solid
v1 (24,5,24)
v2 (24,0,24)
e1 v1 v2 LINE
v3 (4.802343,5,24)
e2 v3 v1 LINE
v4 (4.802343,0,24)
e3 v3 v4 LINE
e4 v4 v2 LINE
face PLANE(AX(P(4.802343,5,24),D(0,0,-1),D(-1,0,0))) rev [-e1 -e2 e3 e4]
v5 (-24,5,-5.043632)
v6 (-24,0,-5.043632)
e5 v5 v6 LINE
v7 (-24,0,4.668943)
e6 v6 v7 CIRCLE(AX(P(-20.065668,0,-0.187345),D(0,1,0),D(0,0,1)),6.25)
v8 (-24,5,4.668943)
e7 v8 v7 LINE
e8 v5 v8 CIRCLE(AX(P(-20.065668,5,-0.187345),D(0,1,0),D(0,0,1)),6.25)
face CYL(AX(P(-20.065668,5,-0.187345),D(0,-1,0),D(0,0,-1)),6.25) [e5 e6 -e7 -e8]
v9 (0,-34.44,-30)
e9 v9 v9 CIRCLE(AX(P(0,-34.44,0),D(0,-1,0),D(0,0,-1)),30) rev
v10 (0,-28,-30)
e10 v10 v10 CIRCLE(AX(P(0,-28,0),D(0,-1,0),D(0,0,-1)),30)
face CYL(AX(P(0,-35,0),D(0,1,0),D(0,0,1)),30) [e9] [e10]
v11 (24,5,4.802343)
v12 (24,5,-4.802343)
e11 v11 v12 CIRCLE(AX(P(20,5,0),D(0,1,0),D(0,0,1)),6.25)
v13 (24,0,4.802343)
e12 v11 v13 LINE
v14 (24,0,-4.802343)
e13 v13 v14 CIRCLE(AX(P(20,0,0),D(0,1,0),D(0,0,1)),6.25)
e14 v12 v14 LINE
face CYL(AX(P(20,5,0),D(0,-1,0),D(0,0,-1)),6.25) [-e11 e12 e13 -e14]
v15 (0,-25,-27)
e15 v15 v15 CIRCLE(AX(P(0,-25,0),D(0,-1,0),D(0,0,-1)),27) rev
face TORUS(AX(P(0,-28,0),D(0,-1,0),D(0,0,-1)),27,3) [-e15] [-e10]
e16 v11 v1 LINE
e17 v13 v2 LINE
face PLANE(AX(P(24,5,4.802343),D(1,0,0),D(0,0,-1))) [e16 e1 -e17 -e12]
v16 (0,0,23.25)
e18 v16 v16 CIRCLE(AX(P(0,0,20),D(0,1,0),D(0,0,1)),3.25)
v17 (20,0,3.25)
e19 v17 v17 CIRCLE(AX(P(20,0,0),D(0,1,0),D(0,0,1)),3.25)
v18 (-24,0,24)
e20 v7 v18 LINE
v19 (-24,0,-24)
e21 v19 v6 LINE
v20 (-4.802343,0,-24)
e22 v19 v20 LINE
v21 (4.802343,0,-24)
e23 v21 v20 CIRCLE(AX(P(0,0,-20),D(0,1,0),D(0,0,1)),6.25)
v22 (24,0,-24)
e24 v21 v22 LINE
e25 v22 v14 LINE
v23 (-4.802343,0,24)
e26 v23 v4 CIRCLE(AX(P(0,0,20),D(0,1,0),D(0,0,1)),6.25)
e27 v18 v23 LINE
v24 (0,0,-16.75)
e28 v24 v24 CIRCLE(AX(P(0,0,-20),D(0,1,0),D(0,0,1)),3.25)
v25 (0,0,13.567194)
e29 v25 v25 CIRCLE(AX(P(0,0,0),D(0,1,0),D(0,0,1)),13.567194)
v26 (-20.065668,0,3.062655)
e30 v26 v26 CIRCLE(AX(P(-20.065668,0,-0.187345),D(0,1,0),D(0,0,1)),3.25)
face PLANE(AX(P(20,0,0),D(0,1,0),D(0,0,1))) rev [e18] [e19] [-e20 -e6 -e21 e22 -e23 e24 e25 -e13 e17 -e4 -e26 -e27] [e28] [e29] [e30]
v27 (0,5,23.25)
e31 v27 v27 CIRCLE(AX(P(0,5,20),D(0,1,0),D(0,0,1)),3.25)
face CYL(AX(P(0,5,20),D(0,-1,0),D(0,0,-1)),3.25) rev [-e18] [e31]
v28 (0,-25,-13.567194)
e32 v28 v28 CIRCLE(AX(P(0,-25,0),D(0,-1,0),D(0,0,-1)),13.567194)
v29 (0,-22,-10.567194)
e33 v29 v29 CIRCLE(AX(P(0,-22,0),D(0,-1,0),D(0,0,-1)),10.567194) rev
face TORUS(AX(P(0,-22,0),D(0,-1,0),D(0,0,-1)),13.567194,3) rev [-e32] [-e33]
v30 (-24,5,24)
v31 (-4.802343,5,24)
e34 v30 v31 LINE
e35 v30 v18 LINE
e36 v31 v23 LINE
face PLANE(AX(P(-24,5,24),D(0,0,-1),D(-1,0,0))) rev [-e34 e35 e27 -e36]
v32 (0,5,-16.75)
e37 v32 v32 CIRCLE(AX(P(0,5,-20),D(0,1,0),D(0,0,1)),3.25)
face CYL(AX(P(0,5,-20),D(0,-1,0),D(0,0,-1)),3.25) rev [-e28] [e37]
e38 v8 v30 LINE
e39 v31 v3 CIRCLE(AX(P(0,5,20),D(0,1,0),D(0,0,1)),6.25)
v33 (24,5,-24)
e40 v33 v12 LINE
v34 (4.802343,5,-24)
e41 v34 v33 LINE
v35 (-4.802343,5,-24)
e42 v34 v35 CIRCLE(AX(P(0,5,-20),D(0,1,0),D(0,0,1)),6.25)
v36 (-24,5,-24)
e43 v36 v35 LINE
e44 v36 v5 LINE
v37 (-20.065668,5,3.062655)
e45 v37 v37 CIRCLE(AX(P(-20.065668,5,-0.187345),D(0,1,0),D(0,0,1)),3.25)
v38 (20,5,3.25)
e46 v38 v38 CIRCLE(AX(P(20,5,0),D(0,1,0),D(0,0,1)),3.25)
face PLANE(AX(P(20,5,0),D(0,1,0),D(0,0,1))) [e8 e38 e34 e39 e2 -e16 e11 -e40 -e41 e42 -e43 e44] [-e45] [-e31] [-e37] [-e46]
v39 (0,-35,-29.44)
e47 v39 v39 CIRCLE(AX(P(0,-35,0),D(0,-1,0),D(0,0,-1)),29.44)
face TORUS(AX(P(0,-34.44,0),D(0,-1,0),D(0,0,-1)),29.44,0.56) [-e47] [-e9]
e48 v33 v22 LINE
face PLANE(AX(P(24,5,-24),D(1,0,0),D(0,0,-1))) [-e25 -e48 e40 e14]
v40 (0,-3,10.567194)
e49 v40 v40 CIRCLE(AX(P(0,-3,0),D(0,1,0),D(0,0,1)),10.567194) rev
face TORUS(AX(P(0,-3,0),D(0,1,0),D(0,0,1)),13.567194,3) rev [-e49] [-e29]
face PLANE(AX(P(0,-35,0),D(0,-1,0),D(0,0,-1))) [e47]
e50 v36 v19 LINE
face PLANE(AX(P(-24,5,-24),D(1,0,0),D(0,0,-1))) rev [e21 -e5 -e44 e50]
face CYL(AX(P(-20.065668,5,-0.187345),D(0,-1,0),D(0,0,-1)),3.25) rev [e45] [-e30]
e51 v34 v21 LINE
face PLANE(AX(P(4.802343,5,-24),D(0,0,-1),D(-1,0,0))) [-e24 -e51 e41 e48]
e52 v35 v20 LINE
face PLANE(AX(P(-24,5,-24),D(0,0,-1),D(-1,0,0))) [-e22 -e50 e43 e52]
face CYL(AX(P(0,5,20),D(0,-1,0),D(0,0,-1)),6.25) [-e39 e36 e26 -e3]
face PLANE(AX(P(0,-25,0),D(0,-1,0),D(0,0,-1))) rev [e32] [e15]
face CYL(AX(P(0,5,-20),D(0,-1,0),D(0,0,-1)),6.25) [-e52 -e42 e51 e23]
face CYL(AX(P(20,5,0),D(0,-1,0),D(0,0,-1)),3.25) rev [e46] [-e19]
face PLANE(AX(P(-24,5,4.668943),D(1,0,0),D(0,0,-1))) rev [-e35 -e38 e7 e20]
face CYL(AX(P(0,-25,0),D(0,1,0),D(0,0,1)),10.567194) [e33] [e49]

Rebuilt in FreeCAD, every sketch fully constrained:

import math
import FreeCAD as App
import Part
import Sketcher
from FreeCAD import Vector
Q = App.Units.Quantity


def edges_at(feature, points):
    """Names of the edges that pass closest to the given points."""
    edges = feature.Shape.Edges
    near = lambda p: min(range(len(edges)), key=lambda i: edges[i].distToShape(Part.Vertex(*p))[0])
    return sorted({f"Edge{near(p) + 1}" for p in points})


def add_polygon(sketch, points):
    """Adds a closed chain of lines whose ends are joined by coincident constraints."""
    first, n = sketch.GeometryCount, len(points)
    for a, b in zip(points, points[1:] + points[:1]):
        sketch.addGeometry(Part.LineSegment(App.Vector(*a, 0), App.Vector(*b, 0)), False)
    for i in range(n):
        sketch.addConstraint(Sketcher.Constraint("Coincident", first + i, 2, first + (i + 1) % n, 1))

doc = App.newDocument("Part")
body = doc.addObject("PartDesign::Body", "Body")

# Sketch on XZ plane
sketch1 = doc.addObject("Sketcher::SketchObject", "Sketch")
body.addObject(sketch1)
sketch1.AttachmentSupport = (doc.XZ_Plane, [""])
sketch1.MapMode = "FlatFace"
sketch1.addGeometry([
    Part.LineSegment(Vector(-24, 4.7, 0), Vector(-24, 24, 0)),  # 0
    Part.LineSegment(Vector(-24, 24, 0), Vector(-4.8, 24, 0)),  # 1
    Part.ArcOfCircle(Part.Circle(Vector(0, 20, 0), Vector(0, 0, 1), 6.2), math.radians(40), math.radians(140)),  # 2
    Part.LineSegment(Vector(4.8, 24, 0), Vector(24, 24, 0)),  # 3
    Part.LineSegment(Vector(24, 24, 0), Vector(24, 4.8, 0)),  # 4
    Part.ArcOfCircle(Part.Circle(Vector(20, 0, 0), Vector(0, 0, 1), 6.2), math.radians(-50), math.radians(50)),  # 5
    Part.LineSegment(Vector(24, -4.8, 0), Vector(24, -24, 0)),  # 6
    Part.LineSegment(Vector(24, -24, 0), Vector(4.8, -24, 0)),  # 7
    Part.ArcOfCircle(Part.Circle(Vector(0, -20, 0), Vector(0, 0, 1), 6.2), math.radians(-140), math.radians(-40)),  # 8
    Part.LineSegment(Vector(-4.8, -24, 0), Vector(-24, -24, 0)),  # 9
    Part.LineSegment(Vector(-24, -24, 0), Vector(-24, -5, 0)),  # 10
    Part.ArcOfCircle(Part.Circle(Vector(-20.1, -0.2, 0), Vector(0, 0, 1), 6.3), math.radians(129), math.radians(231)),  # 11
    Part.Circle(Vector(0, 20, 0), Vector(0, 0, 1), 3.2),  # 12
    Part.Circle(Vector(-20.1, -0.2, 0), Vector(0, 0, 1), 3.2),  # 13
    Part.LineSegment(Vector(-16, -4.9, 0), Vector(-16, -16, 0)),  # 14
    Part.LineSegment(Vector(-16, -16, 0), Vector(-4.8, -16, 0)),  # 15
    Part.ArcOfCircle(Part.Circle(Vector(0, -20, 0), Vector(0, 0, 1), 6.2), math.radians(40), math.radians(140)),  # 16
    Part.LineSegment(Vector(4.8, -16, 0), Vector(16, -16, 0)),  # 17
    Part.LineSegment(Vector(16, -16, 0), Vector(16, -4.8, 0)),  # 18
    Part.ArcOfCircle(Part.Circle(Vector(20, 0, 0), Vector(0, 0, 1), 6.2), math.radians(130), math.radians(230)),  # 19
    Part.LineSegment(Vector(16, 4.8, 0), Vector(16, 16, 0)),  # 20
    Part.LineSegment(Vector(16, 16, 0), Vector(4.8, 16, 0)),  # 21
    Part.ArcOfCircle(Part.Circle(Vector(0, 20, 0), Vector(0, 0, 1), 6.2), math.radians(-140), math.radians(-40)),  # 22
    Part.LineSegment(Vector(-4.8, 16, 0), Vector(-16, 16, 0)),  # 23
    Part.LineSegment(Vector(-16, 16, 0), Vector(-16, 4.6, 0)),  # 24
    Part.ArcOfCircle(Part.Circle(Vector(-20.1, -0.2, 0), Vector(0, 0, 1), 6.2), math.radians(-49), math.radians(49)),  # 25
    Part.Circle(Vector(20, 0, 0), Vector(0, 0, 1), 3.2),  # 26
    Part.Circle(Vector(0, -20, 0), Vector(0, 0, 1), 3.2),  # 27
], False)
sketch1.addConstraint([
    Sketcher.Constraint("Coincident", 0, 2, 1, 1),
    Sketcher.Constraint("Coincident", 1, 2, 2, 2),
    Sketcher.Constraint("Coincident", 2, 1, 3, 1),
    Sketcher.Constraint("Coincident", 3, 2, 4, 1),
    Sketcher.Constraint("Coincident", 4, 2, 5, 2),
    Sketcher.Constraint("Coincident", 5, 1, 6, 1),
    Sketcher.Constraint("Coincident", 6, 2, 7, 1),
    Sketcher.Constraint("Coincident", 7, 2, 8, 2),
    Sketcher.Constraint("Coincident", 8, 1, 9, 1),
    Sketcher.Constraint("Coincident", 9, 2, 10, 1),
    Sketcher.Constraint("Coincident", 10, 2, 11, 2),
    Sketcher.Constraint("Coincident", 11, 1, 0, 1),
    Sketcher.Constraint("Coincident", 14, 2, 15, 1),
    Sketcher.Constraint("Coincident", 15, 2, 16, 2),
    Sketcher.Constraint("Coincident", 16, 1, 17, 1),
    Sketcher.Constraint("Coincident", 17, 2, 18, 1),
    Sketcher.Constraint("Coincident", 18, 2, 19, 2),
    Sketcher.Constraint("Coincident", 19, 1, 20, 1),
    Sketcher.Constraint("Coincident", 20, 2, 21, 1),
    Sketcher.Constraint("Coincident", 21, 2, 22, 2),
    Sketcher.Constraint("Coincident", 22, 1, 23, 1),
    Sketcher.Constraint("Coincident", 23, 2, 24, 1),
    Sketcher.Constraint("Coincident", 24, 2, 25, 2),
    Sketcher.Constraint("Coincident", 25, 1, 14, 1),
    Sketcher.Constraint("Vertical", 0),
    Sketcher.Constraint("Horizontal", 1),
    Sketcher.Constraint("Horizontal", 3),
    Sketcher.Constraint("Vertical", 4),
    Sketcher.Constraint("Vertical", 6),
    Sketcher.Constraint("Horizontal", 7),
    Sketcher.Constraint("Horizontal", 9),
    Sketcher.Constraint("Vertical", 10),
    Sketcher.Constraint("Vertical", 14),
    Sketcher.Constraint("Horizontal", 15),
    Sketcher.Constraint("Horizontal", 17),
    Sketcher.Constraint("Vertical", 18),
    Sketcher.Constraint("Vertical", 20),
    Sketcher.Constraint("Horizontal", 21),
    Sketcher.Constraint("Horizontal", 23),
    Sketcher.Constraint("Vertical", 24),
    Sketcher.Constraint("Coincident", 12, 3, 2, 3),
    Sketcher.Constraint("Coincident", 13, 3, 11, 3),
    Sketcher.Constraint("Coincident", 16, 3, 8, 3),
    Sketcher.Constraint("Coincident", 19, 3, 5, 3),
    Sketcher.Constraint("Coincident", 22, 3, 2, 3),
    Sketcher.Constraint("Coincident", 25, 3, 11, 3),
    Sketcher.Constraint("Coincident", 26, 3, 5, 3),
    Sketcher.Constraint("Coincident", 27, 3, 8, 3),
    Sketcher.Constraint("Equal", 2, 5),
    Sketcher.Constraint("Equal", 5, 8),
    Sketcher.Constraint("Equal", 8, 11),
    Sketcher.Constraint("Equal", 12, 13),
    Sketcher.Constraint("Equal", 11, 16),
    Sketcher.Constraint("Equal", 16, 19),
    Sketcher.Constraint("Equal", 19, 22),
    Sketcher.Constraint("Equal", 22, 25),
    Sketcher.Constraint("Equal", 13, 26),
    Sketcher.Constraint("Equal", 26, 27),
    Sketcher.Constraint("Symmetric", 2, 3, 8, 3, -1, 1),
    Sketcher.Constraint("Symmetric", 0, 2, 6, 2, -1, 1),
    Sketcher.Constraint("Symmetric", 3, 2, 9, 2, -1, 1),
    Sketcher.Constraint("Symmetric", 14, 2, 20, 2, -1, 1),
    Sketcher.Constraint("Symmetric", 17, 2, 23, 2, -1, 1),
    Sketcher.Constraint("Symmetric", 1, 2, 2, 1, -2),
    Sketcher.Constraint("Symmetric", 14, 2, 17, 2, -2),
    Sketcher.Constraint("Symmetric", 4, 2, 5, 1, -1),
    Sketcher.Constraint("Horizontal", 5, 1, 18, 2),
    Sketcher.Constraint("Vertical", 8, 1, 15, 2),
    Sketcher.Constraint("Equal", 9, 4),
    Sketcher.Constraint("Equal", 23, 18),
    Sketcher.Constraint("Diameter", 12, Q("6.5 mm")),
    Sketcher.Constraint("Radius", 2, Q("6.25 mm")),
    Sketcher.Constraint("DistanceY", -1, 1, 2, 3, Q("20 mm")),
    Sketcher.Constraint("DistanceX", 0, 2, -1, 1, Q("24 mm")),
    Sketcher.Constraint("DistanceY", 14, 2, 14, 1, Q("11.065778 mm")),
    Sketcher.Constraint("DistanceY", 0, 1, 0, 2, Q("19.331057 mm")),
])
pad1 = doc.addObject("PartDesign::Pad", "Pad")
body.addObject(pad1)
pad1.Profile = sketch1
pad1.Length = 5
pad1.Reversed = True

# Sketch on XZ plane
sketch2 = doc.addObject("Sketcher::SketchObject", "Sketch001")
body.addObject(sketch2)
sketch2.AttachmentSupport = (doc.XZ_Plane, [""])
sketch2.MapMode = "FlatFace"
add_polygon(sketch2, [(-16, 16), (-16, -16), (16, -16), (16, 16)])  # lines 0-3
sketch2.addConstraint([
    Sketcher.Constraint("Vertical", 0),
    Sketcher.Constraint("Horizontal", 1),
    Sketcher.Constraint("Vertical", 2),
    Sketcher.Constraint("Horizontal", 3),
    Sketcher.Constraint("Symmetric", 0, 2, 2, 2, -1, 1),
    Sketcher.Constraint("DistanceX", 1, 1, 1, 2, Q("32.649387 mm")),
    Sketcher.Constraint("DistanceY", 0, 2, 0, 1, Q("32.906932 mm")),
])
pad2 = doc.addObject("PartDesign::Pad", "Pad001")
body.addObject(pad2)
pad2.Profile = sketch2
pad2.Length = 5
pad2.Reversed = True

# Sketch on XZ plane
sketch3 = doc.addObject("Sketcher::SketchObject", "Sketch002")
body.addObject(sketch3)
sketch3.AttachmentSupport = (doc.XZ_Plane, [""])
sketch3.MapMode = "FlatFace"
sketch3.addGeometry(Part.Circle(Vector(0, 0, 0), Vector(0, 0, 1), 11), False)
sketch3.addConstraint([
    Sketcher.Constraint("Coincident", 0, 3, -1, 1),
    Sketcher.Constraint("Diameter", 0, Q("21.134387 mm")),
])
pad3 = doc.addObject("PartDesign::Pad", "Pad002")
body.addObject(pad3)
pad3.Profile = sketch3
pad3.Length = 25

# Sketch on XZ plane
sketch4 = doc.addObject("Sketcher::SketchObject", "Sketch003")
body.addObject(sketch4)
sketch4.AttachmentSupport = (doc.XZ_Plane, [""])
sketch4.MapMode = "FlatFace"
sketch4.AttachmentOffset = App.Placement(Vector(0, 0, 25), App.Rotation())
sketch4.addGeometry(Part.Circle(Vector(0, 0, 0), Vector(0, 0, 1), 30), False)
sketch4.addConstraint([
    Sketcher.Constraint("Coincident", 0, 3, -1, 1),
    Sketcher.Constraint("Diameter", 0, Q("60 mm")),
])
pad4 = doc.addObject("PartDesign::Pad", "Pad003")
body.addObject(pad4)
pad4.Profile = sketch4
pad4.Length = 10
doc.recompute()

fillet = doc.addObject("PartDesign::Fillet", "Fillet")
body.addObject(fillet)
fillet.Base = (pad4, edges_at(pad4, [(0, 0, -10.567)]))
fillet.Radius = 3
doc.recompute()

fillet2 = doc.addObject("PartDesign::Fillet", "Fillet001")
body.addObject(fillet2)
fillet2.Base = (fillet, edges_at(fillet, [(0, -35, 30)]))
fillet2.Radius = 0.56
doc.recompute()

fillet3 = doc.addObject("PartDesign::Fillet", "Fillet002")
body.addObject(fillet3)
fillet3.Base = (fillet2, edges_at(fillet2, [(0, -25, -10.567), (0, -25, 30)]))
fillet3.Radius = 3

doc.recompute()
